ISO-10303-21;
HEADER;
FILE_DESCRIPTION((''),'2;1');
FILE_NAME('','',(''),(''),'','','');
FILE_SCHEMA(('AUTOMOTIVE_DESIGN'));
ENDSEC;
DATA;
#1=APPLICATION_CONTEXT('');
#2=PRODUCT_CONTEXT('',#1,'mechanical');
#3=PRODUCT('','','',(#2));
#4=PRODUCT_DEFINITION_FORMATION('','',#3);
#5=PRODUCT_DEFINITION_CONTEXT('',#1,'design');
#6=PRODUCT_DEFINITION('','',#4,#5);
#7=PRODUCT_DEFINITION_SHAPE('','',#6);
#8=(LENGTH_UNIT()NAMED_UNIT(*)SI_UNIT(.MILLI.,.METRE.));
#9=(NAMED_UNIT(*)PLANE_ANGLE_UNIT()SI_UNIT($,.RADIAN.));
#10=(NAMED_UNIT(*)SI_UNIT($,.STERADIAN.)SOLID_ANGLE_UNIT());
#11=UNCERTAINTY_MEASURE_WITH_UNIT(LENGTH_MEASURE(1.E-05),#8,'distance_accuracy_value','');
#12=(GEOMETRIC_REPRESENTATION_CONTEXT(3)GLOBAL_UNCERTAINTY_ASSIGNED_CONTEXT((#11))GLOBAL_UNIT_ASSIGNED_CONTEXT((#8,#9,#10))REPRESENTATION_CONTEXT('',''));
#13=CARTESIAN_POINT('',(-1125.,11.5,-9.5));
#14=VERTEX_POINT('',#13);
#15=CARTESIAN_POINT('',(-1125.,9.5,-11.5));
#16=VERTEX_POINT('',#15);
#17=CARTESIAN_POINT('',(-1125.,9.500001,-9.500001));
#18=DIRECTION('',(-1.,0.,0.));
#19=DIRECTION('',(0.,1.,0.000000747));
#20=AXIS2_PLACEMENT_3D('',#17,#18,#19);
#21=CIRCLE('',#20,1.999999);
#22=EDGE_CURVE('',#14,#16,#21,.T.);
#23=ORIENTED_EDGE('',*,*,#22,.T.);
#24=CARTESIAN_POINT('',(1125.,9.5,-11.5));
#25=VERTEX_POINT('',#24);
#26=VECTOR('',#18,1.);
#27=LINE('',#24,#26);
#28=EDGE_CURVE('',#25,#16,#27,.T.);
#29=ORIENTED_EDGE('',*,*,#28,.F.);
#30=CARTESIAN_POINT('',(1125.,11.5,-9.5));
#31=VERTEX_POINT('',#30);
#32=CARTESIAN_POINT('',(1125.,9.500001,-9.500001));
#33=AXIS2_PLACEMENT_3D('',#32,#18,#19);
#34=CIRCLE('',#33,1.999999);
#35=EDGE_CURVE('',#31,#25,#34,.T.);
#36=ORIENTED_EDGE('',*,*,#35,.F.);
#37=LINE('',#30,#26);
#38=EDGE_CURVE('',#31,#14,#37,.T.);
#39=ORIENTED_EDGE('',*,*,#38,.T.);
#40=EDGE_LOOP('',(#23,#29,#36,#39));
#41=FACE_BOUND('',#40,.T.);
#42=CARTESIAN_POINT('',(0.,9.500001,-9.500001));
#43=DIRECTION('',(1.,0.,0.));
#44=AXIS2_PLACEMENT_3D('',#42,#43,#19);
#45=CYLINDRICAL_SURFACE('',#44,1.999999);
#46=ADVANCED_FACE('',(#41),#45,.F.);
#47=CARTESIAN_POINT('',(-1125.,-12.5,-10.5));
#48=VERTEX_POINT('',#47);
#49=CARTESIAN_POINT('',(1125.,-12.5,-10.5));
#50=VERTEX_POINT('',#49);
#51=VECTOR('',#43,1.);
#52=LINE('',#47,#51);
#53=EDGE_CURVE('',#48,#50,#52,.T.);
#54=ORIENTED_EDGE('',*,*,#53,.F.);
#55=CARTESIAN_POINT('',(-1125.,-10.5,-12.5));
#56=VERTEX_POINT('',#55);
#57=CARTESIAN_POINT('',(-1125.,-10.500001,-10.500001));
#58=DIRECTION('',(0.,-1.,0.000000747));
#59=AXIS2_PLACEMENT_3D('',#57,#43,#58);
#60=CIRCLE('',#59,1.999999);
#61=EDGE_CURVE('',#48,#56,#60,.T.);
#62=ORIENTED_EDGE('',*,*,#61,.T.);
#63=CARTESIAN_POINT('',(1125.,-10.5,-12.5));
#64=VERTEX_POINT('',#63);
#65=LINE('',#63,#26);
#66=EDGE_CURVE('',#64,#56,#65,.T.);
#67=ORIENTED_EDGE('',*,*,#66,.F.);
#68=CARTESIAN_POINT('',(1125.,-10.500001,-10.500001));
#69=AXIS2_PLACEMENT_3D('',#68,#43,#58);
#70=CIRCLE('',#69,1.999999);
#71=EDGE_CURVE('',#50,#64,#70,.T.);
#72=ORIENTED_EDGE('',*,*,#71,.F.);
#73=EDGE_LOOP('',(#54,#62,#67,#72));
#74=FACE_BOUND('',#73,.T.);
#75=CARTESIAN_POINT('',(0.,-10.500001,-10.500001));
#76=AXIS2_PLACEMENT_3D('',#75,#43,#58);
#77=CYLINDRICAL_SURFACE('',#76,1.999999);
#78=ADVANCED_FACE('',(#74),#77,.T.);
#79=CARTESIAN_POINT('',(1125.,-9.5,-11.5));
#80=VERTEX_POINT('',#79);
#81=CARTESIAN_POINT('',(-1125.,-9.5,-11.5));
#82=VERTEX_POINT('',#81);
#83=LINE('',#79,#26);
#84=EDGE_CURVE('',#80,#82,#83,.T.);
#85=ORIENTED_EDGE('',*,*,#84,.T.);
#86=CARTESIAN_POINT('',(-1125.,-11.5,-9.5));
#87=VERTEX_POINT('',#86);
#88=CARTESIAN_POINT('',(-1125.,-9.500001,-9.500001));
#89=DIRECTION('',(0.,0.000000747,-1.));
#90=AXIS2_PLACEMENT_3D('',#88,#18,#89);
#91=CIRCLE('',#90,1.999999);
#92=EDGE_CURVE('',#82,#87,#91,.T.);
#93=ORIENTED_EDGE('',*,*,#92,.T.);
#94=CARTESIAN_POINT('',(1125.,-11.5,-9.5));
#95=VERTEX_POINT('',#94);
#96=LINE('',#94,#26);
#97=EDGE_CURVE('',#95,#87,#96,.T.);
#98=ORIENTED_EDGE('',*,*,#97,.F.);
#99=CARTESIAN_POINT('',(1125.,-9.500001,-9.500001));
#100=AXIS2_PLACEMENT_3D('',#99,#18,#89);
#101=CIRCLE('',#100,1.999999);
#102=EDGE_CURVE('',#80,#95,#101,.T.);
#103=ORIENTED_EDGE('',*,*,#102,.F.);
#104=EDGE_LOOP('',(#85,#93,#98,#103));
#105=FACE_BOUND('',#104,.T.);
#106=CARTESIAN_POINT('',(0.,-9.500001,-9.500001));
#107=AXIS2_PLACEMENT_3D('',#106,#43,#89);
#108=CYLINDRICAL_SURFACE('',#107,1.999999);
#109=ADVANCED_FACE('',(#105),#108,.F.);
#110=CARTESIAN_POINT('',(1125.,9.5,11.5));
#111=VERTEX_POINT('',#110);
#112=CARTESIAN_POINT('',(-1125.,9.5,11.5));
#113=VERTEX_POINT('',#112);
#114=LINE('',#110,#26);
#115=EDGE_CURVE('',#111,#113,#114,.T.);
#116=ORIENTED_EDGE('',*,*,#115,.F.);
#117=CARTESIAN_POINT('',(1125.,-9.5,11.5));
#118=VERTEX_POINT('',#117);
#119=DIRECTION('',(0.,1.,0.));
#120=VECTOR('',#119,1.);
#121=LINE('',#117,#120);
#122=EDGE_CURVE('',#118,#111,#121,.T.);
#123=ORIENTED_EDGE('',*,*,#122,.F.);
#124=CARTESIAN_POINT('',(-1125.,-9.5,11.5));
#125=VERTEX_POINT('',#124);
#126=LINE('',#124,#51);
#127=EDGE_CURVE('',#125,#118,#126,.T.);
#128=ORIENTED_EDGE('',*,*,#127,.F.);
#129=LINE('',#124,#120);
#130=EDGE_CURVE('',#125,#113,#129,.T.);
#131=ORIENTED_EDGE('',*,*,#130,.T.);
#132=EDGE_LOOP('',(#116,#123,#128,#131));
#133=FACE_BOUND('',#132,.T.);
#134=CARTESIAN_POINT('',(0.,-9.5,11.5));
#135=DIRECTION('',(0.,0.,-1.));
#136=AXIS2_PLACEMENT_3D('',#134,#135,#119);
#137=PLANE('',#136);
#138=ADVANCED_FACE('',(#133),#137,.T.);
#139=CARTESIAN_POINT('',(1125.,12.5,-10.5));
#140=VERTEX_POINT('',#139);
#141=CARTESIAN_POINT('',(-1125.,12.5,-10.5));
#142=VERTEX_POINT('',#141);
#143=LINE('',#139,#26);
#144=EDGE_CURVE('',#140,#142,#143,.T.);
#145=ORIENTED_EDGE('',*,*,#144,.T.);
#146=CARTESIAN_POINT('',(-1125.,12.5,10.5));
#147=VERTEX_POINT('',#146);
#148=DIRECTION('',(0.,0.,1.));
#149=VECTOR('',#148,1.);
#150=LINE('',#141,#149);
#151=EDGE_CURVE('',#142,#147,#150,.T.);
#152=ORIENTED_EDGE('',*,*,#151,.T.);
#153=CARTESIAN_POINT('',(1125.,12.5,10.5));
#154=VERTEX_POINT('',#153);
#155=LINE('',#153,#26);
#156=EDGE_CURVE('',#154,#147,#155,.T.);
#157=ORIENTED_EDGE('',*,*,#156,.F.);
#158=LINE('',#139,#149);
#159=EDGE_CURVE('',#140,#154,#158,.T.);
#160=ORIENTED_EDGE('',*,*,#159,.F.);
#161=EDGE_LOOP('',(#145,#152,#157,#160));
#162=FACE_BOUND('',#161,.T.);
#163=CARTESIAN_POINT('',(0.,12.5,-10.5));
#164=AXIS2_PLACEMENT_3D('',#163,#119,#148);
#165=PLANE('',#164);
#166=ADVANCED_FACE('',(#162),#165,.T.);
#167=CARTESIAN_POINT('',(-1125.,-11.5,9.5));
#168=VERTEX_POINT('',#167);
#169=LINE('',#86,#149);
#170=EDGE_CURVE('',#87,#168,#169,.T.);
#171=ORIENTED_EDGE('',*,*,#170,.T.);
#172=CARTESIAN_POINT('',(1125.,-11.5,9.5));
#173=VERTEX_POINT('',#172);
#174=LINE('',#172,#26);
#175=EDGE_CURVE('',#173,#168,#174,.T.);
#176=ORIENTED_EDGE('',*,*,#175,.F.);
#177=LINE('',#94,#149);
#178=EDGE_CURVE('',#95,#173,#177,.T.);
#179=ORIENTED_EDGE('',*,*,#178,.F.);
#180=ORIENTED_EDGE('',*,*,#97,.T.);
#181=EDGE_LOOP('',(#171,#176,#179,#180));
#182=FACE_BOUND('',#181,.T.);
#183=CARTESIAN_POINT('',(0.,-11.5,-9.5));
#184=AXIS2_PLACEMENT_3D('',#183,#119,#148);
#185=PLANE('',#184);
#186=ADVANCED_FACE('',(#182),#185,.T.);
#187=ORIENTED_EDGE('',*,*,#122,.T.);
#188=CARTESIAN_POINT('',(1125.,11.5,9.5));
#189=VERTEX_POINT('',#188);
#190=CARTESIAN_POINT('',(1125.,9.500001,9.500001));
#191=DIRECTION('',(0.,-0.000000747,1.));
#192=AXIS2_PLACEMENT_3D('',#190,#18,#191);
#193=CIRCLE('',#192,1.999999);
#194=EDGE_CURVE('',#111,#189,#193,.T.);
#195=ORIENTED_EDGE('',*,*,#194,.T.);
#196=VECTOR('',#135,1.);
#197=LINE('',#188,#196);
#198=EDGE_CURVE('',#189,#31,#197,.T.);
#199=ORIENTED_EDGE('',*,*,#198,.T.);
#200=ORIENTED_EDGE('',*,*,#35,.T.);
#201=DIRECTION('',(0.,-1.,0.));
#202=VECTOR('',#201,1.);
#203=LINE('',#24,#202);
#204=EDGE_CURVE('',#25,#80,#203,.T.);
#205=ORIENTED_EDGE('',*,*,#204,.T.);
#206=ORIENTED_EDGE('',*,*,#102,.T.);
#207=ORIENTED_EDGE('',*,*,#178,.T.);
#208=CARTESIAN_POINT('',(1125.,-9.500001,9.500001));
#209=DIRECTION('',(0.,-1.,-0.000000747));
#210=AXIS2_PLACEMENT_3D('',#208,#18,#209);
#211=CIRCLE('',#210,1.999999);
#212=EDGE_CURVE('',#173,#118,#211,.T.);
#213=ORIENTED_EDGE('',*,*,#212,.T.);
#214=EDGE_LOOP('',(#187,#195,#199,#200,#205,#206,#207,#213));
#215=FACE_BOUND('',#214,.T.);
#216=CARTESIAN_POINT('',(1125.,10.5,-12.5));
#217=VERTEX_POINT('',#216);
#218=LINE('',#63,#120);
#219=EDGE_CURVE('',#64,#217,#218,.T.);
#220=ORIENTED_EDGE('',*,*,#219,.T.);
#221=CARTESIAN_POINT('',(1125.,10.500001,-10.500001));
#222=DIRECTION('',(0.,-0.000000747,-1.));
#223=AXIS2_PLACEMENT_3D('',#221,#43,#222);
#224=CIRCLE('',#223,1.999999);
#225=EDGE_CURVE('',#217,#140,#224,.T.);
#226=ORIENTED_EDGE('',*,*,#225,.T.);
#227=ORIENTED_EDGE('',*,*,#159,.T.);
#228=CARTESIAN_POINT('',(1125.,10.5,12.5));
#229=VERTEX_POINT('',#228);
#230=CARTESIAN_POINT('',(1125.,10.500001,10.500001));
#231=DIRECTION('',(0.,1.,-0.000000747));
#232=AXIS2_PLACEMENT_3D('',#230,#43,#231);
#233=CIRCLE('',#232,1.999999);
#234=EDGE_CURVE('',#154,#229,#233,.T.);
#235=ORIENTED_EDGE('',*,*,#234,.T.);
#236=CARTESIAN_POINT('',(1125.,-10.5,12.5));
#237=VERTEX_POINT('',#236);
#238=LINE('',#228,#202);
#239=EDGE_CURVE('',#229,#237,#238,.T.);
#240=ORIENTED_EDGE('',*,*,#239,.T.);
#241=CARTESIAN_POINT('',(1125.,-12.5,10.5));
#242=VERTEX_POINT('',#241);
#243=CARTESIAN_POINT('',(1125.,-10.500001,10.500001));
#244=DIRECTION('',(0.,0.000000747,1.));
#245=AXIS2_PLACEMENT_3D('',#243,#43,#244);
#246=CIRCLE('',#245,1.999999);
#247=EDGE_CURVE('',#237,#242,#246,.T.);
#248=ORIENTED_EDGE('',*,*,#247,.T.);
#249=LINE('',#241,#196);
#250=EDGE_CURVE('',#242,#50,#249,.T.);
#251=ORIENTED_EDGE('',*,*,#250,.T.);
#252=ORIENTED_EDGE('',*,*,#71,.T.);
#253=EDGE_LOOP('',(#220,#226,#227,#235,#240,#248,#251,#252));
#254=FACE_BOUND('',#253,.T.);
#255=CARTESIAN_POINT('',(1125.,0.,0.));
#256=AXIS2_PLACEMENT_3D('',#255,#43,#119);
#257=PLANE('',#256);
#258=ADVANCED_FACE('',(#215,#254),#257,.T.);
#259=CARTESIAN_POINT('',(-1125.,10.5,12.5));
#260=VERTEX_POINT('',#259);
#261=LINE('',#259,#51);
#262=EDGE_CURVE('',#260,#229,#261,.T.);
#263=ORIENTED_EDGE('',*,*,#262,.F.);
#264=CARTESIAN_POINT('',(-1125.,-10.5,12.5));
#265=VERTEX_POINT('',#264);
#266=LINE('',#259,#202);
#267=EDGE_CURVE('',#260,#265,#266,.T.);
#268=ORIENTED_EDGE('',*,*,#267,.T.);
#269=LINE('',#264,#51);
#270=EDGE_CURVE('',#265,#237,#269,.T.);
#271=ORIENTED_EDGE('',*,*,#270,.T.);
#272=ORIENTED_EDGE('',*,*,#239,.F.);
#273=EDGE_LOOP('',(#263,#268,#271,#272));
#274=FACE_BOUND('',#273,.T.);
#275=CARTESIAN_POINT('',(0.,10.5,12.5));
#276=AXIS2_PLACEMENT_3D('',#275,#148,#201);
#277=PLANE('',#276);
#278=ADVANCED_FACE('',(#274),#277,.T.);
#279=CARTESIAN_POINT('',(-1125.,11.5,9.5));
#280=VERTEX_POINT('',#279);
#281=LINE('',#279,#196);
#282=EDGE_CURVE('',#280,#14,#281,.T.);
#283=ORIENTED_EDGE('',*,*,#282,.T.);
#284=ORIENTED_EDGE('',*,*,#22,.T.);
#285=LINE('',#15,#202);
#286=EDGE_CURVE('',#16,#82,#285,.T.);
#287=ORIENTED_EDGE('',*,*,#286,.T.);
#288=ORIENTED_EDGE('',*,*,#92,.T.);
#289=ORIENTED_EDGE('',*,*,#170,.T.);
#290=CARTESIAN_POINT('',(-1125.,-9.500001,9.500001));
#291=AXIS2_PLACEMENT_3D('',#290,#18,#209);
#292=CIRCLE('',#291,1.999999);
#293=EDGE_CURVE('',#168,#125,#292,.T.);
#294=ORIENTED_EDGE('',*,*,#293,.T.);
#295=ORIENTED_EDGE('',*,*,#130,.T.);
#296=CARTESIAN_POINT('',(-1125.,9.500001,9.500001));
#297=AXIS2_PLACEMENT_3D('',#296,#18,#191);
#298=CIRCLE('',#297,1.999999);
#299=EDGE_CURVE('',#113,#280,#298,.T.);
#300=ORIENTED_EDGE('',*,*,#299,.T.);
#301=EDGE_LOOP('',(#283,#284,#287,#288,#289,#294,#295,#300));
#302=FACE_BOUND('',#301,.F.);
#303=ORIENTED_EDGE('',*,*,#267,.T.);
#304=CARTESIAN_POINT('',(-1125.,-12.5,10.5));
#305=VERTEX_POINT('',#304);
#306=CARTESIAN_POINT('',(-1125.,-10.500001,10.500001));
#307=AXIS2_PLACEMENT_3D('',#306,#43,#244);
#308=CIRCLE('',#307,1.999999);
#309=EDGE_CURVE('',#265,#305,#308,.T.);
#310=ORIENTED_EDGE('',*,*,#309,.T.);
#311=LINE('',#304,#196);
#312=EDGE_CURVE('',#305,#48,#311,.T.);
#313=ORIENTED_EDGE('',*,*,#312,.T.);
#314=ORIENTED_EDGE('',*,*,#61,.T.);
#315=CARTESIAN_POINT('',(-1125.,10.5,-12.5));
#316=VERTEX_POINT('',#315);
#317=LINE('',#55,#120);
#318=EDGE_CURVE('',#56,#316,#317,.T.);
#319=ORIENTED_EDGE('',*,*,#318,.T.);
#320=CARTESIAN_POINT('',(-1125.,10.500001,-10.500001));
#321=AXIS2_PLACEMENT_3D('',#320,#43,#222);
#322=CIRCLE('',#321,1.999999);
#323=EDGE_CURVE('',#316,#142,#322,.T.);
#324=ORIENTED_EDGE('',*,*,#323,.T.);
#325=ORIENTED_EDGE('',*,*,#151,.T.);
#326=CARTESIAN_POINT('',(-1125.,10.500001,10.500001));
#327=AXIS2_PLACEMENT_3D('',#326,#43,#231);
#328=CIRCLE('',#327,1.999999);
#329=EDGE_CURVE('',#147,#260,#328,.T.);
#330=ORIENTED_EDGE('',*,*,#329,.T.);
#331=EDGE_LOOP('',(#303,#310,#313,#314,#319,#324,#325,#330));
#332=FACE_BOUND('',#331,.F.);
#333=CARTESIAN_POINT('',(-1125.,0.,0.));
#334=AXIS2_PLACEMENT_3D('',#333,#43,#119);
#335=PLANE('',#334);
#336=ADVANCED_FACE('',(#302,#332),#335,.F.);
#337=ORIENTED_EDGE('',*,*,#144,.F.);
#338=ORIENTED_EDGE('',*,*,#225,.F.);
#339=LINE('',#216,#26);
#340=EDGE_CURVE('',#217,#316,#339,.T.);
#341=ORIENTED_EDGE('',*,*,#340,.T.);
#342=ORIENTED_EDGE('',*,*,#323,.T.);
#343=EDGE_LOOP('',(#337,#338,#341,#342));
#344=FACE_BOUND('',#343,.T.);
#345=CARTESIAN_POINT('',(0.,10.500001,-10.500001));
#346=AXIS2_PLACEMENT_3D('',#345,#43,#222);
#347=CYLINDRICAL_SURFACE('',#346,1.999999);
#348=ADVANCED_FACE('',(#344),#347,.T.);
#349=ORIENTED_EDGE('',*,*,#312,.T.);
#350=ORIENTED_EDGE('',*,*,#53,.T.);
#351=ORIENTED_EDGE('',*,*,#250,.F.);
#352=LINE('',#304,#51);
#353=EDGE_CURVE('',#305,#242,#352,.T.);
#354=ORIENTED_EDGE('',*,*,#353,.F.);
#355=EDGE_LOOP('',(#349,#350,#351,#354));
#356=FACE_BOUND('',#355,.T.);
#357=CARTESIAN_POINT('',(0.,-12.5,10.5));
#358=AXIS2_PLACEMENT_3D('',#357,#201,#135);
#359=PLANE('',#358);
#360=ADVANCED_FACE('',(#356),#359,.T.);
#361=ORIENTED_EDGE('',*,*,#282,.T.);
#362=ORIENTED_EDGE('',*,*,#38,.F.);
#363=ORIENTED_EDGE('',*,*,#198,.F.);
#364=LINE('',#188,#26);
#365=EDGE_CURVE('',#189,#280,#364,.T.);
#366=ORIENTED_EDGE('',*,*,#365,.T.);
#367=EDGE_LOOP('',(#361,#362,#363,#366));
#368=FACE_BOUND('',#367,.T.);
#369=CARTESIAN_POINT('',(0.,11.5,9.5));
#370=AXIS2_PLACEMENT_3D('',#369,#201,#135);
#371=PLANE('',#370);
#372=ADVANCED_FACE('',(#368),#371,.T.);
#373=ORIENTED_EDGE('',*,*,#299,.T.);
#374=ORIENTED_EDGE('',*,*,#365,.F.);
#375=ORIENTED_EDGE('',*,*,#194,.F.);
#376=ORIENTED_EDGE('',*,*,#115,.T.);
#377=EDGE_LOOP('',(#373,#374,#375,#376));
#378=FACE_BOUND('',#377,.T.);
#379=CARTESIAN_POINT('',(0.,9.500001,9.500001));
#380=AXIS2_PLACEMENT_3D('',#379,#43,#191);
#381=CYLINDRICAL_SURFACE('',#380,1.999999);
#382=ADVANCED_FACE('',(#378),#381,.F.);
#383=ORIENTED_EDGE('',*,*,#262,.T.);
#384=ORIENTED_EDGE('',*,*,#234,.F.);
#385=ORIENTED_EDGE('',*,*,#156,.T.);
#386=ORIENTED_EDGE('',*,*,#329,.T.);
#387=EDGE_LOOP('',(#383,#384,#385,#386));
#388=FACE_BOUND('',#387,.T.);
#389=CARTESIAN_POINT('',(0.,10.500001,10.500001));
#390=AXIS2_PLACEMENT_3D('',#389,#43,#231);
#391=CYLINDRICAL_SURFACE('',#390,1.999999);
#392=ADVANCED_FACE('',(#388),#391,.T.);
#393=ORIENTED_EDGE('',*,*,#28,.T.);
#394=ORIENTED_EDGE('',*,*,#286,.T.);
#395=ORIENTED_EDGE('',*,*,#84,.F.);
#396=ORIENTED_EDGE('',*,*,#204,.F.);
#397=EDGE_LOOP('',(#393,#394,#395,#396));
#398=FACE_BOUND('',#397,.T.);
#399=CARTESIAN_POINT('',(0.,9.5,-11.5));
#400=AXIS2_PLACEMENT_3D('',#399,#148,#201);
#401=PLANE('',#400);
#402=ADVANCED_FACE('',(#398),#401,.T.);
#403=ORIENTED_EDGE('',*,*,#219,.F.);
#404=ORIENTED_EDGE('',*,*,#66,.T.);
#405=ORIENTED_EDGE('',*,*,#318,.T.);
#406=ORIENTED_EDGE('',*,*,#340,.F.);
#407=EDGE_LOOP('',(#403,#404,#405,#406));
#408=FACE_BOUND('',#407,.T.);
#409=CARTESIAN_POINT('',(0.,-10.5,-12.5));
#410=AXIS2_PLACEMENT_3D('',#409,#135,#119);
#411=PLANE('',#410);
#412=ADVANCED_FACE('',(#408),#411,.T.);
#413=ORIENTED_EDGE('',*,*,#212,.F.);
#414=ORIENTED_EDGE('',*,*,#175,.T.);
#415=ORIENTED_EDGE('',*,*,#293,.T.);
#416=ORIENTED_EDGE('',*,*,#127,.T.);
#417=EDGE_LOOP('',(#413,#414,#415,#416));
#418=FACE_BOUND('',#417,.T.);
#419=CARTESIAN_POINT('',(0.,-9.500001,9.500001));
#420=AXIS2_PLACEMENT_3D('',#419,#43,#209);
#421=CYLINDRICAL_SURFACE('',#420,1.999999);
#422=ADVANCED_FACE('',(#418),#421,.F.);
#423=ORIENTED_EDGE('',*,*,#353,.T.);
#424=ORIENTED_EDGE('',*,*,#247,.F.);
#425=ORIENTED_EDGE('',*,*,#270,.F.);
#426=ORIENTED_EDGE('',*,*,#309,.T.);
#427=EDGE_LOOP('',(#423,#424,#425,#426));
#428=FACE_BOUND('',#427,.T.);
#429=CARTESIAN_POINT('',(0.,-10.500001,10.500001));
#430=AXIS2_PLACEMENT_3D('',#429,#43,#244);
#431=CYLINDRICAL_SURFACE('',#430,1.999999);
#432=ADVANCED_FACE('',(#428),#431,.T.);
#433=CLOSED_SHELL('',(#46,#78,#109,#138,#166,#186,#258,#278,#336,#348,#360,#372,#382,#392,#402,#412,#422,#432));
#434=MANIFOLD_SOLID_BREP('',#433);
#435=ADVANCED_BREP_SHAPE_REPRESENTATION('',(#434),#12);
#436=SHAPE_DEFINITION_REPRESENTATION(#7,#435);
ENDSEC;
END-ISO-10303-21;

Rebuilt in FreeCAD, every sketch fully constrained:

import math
import FreeCAD as App
import Part
import Sketcher
Q = App.Units.Quantity

doc = App.newDocument("Part")
body = doc.addObject("PartDesign::Body", "Body")

sketch1 = doc.addObject("Sketcher::SketchObject", "Sketch")
body.addObject(sketch1)
sketch1.AttachmentSupport = (doc.YZ_Plane, [""])
sketch1.MapMode = "FlatFace"
sketch1.addGeometry([
    Part.ArcOfCircle(Part.Circle(App.Vector(10.5, 10.5, 0), App.Vector(0, 0, 1), 2), math.radians(0), math.radians(90)),
    Part.LineSegment(App.Vector(10.5, 12.5, 0), App.Vector(-10.5, 12.5, 0)),
    Part.ArcOfCircle(Part.Circle(App.Vector(-10.5, 10.5, 0), App.Vector(0, 0, 1), 2), math.radians(90), math.radians(180)),
    Part.LineSegment(App.Vector(-12.5, 10.5, 0), App.Vector(-12.5, -10.5, 0)),
    Part.ArcOfCircle(Part.Circle(App.Vector(-10.5, -10.5, 0), App.Vector(0, 0, 1), 2), math.radians(180), math.radians(270)),
    Part.LineSegment(App.Vector(-10.5, -12.5, 0), App.Vector(10.5, -12.5, 0)),
    Part.ArcOfCircle(Part.Circle(App.Vector(10.5, -10.5, 0), App.Vector(0, 0, 1), 2), math.radians(-90), math.radians(0)),
    Part.LineSegment(App.Vector(12.5, -10.5, 0), App.Vector(12.5, 10.5, 0)),
    Part.ArcOfCircle(Part.Circle(App.Vector(-9.5, 9.5, 0), App.Vector(0, 0, 1), 2), math.radians(90), math.radians(180)),
    Part.LineSegment(App.Vector(-9.5, 11.5, 0), App.Vector(9.5, 11.5, 0)),
    Part.ArcOfCircle(Part.Circle(App.Vector(9.5, 9.5, 0), App.Vector(0, 0, 1), 2), math.radians(0), math.radians(90)),
    Part.LineSegment(App.Vector(11.5, 9.5, 0), App.Vector(11.5, -9.5, 0)),
    Part.ArcOfCircle(Part.Circle(App.Vector(9.5, -9.5, 0), App.Vector(0, 0, 1), 2), math.radians(-90), math.radians(0)),
    Part.LineSegment(App.Vector(9.5, -11.5, 0), App.Vector(-9.5, -11.5, 0)),
    Part.ArcOfCircle(Part.Circle(App.Vector(-9.5, -9.5, 0), App.Vector(0, 0, 1), 2), math.radians(180), math.radians(270)),
    Part.LineSegment(App.Vector(-11.5, -9.5, 0), App.Vector(-11.5, 9.5, 0)),
], False)
sketch1.addConstraint([
    Sketcher.Constraint("Tangent", 0, 2, 1, 1),
    Sketcher.Constraint("Tangent", 1, 2, 2, 1),
    Sketcher.Constraint("Tangent", 2, 2, 3, 1),
    Sketcher.Constraint("Tangent", 3, 2, 4, 1),
    Sketcher.Constraint("Tangent", 4, 2, 5, 1),
    Sketcher.Constraint("Tangent", 5, 2, 6, 1),
    Sketcher.Constraint("Tangent", 6, 2, 7, 1),
    Sketcher.Constraint("Tangent", 7, 2, 0, 1),
    Sketcher.Constraint("Tangent", 8, 1, 9, 1),
    Sketcher.Constraint("Tangent", 9, 2, 10, 2),
    Sketcher.Constraint("Tangent", 10, 1, 11, 1),
    Sketcher.Constraint("Tangent", 11, 2, 12, 2),
    Sketcher.Constraint("Tangent", 12, 1, 13, 1),
    Sketcher.Constraint("Tangent", 13, 2, 14, 2),
    Sketcher.Constraint("Tangent", 14, 1, 15, 1),
    Sketcher.Constraint("Tangent", 15, 2, 8, 2),
    Sketcher.Constraint("Horizontal", 1),
    Sketcher.Constraint("Vertical", 3),
    Sketcher.Constraint("Horizontal", 5),
    Sketcher.Constraint("Vertical", 7),
    Sketcher.Constraint("Horizontal", 9),
    Sketcher.Constraint("Vertical", 11),
    Sketcher.Constraint("Horizontal", 13),
    Sketcher.Constraint("Vertical", 15),
    Sketcher.Constraint("Equal", 0, 2),
    Sketcher.Constraint("Equal", 2, 4),
    Sketcher.Constraint("Equal", 4, 6),
    Sketcher.Constraint("Equal", 6, 8),
    Sketcher.Constraint("Equal", 8, 10),
    Sketcher.Constraint("Equal", 10, 12),
    Sketcher.Constraint("Equal", 12, 14),
    Sketcher.Constraint("Symmetric", 0, 3, 4, 3, -1, 1),
    Sketcher.Constraint("Symmetric", 8, 3, 12, 3, -1, 1),
    Sketcher.Constraint("Equal", 5, 3),
    Sketcher.Constraint("Equal", 13, 11),
    Sketcher.Constraint("Radius", 0, Q("1.999999 mm")),
    Sketcher.Constraint("DistanceX", 1, 2, 1, 1, Q("21 mm")),
    Sketcher.Constraint("DistanceX", 9, 1, 9, 2, Q("19 mm")),
])
pad1 = doc.addObject("PartDesign::Pad", "Pad")
body.addObject(pad1)
pad1.Profile = sketch1
pad1.Length = 2250
pad1.Midplane = True

doc.recompute()
